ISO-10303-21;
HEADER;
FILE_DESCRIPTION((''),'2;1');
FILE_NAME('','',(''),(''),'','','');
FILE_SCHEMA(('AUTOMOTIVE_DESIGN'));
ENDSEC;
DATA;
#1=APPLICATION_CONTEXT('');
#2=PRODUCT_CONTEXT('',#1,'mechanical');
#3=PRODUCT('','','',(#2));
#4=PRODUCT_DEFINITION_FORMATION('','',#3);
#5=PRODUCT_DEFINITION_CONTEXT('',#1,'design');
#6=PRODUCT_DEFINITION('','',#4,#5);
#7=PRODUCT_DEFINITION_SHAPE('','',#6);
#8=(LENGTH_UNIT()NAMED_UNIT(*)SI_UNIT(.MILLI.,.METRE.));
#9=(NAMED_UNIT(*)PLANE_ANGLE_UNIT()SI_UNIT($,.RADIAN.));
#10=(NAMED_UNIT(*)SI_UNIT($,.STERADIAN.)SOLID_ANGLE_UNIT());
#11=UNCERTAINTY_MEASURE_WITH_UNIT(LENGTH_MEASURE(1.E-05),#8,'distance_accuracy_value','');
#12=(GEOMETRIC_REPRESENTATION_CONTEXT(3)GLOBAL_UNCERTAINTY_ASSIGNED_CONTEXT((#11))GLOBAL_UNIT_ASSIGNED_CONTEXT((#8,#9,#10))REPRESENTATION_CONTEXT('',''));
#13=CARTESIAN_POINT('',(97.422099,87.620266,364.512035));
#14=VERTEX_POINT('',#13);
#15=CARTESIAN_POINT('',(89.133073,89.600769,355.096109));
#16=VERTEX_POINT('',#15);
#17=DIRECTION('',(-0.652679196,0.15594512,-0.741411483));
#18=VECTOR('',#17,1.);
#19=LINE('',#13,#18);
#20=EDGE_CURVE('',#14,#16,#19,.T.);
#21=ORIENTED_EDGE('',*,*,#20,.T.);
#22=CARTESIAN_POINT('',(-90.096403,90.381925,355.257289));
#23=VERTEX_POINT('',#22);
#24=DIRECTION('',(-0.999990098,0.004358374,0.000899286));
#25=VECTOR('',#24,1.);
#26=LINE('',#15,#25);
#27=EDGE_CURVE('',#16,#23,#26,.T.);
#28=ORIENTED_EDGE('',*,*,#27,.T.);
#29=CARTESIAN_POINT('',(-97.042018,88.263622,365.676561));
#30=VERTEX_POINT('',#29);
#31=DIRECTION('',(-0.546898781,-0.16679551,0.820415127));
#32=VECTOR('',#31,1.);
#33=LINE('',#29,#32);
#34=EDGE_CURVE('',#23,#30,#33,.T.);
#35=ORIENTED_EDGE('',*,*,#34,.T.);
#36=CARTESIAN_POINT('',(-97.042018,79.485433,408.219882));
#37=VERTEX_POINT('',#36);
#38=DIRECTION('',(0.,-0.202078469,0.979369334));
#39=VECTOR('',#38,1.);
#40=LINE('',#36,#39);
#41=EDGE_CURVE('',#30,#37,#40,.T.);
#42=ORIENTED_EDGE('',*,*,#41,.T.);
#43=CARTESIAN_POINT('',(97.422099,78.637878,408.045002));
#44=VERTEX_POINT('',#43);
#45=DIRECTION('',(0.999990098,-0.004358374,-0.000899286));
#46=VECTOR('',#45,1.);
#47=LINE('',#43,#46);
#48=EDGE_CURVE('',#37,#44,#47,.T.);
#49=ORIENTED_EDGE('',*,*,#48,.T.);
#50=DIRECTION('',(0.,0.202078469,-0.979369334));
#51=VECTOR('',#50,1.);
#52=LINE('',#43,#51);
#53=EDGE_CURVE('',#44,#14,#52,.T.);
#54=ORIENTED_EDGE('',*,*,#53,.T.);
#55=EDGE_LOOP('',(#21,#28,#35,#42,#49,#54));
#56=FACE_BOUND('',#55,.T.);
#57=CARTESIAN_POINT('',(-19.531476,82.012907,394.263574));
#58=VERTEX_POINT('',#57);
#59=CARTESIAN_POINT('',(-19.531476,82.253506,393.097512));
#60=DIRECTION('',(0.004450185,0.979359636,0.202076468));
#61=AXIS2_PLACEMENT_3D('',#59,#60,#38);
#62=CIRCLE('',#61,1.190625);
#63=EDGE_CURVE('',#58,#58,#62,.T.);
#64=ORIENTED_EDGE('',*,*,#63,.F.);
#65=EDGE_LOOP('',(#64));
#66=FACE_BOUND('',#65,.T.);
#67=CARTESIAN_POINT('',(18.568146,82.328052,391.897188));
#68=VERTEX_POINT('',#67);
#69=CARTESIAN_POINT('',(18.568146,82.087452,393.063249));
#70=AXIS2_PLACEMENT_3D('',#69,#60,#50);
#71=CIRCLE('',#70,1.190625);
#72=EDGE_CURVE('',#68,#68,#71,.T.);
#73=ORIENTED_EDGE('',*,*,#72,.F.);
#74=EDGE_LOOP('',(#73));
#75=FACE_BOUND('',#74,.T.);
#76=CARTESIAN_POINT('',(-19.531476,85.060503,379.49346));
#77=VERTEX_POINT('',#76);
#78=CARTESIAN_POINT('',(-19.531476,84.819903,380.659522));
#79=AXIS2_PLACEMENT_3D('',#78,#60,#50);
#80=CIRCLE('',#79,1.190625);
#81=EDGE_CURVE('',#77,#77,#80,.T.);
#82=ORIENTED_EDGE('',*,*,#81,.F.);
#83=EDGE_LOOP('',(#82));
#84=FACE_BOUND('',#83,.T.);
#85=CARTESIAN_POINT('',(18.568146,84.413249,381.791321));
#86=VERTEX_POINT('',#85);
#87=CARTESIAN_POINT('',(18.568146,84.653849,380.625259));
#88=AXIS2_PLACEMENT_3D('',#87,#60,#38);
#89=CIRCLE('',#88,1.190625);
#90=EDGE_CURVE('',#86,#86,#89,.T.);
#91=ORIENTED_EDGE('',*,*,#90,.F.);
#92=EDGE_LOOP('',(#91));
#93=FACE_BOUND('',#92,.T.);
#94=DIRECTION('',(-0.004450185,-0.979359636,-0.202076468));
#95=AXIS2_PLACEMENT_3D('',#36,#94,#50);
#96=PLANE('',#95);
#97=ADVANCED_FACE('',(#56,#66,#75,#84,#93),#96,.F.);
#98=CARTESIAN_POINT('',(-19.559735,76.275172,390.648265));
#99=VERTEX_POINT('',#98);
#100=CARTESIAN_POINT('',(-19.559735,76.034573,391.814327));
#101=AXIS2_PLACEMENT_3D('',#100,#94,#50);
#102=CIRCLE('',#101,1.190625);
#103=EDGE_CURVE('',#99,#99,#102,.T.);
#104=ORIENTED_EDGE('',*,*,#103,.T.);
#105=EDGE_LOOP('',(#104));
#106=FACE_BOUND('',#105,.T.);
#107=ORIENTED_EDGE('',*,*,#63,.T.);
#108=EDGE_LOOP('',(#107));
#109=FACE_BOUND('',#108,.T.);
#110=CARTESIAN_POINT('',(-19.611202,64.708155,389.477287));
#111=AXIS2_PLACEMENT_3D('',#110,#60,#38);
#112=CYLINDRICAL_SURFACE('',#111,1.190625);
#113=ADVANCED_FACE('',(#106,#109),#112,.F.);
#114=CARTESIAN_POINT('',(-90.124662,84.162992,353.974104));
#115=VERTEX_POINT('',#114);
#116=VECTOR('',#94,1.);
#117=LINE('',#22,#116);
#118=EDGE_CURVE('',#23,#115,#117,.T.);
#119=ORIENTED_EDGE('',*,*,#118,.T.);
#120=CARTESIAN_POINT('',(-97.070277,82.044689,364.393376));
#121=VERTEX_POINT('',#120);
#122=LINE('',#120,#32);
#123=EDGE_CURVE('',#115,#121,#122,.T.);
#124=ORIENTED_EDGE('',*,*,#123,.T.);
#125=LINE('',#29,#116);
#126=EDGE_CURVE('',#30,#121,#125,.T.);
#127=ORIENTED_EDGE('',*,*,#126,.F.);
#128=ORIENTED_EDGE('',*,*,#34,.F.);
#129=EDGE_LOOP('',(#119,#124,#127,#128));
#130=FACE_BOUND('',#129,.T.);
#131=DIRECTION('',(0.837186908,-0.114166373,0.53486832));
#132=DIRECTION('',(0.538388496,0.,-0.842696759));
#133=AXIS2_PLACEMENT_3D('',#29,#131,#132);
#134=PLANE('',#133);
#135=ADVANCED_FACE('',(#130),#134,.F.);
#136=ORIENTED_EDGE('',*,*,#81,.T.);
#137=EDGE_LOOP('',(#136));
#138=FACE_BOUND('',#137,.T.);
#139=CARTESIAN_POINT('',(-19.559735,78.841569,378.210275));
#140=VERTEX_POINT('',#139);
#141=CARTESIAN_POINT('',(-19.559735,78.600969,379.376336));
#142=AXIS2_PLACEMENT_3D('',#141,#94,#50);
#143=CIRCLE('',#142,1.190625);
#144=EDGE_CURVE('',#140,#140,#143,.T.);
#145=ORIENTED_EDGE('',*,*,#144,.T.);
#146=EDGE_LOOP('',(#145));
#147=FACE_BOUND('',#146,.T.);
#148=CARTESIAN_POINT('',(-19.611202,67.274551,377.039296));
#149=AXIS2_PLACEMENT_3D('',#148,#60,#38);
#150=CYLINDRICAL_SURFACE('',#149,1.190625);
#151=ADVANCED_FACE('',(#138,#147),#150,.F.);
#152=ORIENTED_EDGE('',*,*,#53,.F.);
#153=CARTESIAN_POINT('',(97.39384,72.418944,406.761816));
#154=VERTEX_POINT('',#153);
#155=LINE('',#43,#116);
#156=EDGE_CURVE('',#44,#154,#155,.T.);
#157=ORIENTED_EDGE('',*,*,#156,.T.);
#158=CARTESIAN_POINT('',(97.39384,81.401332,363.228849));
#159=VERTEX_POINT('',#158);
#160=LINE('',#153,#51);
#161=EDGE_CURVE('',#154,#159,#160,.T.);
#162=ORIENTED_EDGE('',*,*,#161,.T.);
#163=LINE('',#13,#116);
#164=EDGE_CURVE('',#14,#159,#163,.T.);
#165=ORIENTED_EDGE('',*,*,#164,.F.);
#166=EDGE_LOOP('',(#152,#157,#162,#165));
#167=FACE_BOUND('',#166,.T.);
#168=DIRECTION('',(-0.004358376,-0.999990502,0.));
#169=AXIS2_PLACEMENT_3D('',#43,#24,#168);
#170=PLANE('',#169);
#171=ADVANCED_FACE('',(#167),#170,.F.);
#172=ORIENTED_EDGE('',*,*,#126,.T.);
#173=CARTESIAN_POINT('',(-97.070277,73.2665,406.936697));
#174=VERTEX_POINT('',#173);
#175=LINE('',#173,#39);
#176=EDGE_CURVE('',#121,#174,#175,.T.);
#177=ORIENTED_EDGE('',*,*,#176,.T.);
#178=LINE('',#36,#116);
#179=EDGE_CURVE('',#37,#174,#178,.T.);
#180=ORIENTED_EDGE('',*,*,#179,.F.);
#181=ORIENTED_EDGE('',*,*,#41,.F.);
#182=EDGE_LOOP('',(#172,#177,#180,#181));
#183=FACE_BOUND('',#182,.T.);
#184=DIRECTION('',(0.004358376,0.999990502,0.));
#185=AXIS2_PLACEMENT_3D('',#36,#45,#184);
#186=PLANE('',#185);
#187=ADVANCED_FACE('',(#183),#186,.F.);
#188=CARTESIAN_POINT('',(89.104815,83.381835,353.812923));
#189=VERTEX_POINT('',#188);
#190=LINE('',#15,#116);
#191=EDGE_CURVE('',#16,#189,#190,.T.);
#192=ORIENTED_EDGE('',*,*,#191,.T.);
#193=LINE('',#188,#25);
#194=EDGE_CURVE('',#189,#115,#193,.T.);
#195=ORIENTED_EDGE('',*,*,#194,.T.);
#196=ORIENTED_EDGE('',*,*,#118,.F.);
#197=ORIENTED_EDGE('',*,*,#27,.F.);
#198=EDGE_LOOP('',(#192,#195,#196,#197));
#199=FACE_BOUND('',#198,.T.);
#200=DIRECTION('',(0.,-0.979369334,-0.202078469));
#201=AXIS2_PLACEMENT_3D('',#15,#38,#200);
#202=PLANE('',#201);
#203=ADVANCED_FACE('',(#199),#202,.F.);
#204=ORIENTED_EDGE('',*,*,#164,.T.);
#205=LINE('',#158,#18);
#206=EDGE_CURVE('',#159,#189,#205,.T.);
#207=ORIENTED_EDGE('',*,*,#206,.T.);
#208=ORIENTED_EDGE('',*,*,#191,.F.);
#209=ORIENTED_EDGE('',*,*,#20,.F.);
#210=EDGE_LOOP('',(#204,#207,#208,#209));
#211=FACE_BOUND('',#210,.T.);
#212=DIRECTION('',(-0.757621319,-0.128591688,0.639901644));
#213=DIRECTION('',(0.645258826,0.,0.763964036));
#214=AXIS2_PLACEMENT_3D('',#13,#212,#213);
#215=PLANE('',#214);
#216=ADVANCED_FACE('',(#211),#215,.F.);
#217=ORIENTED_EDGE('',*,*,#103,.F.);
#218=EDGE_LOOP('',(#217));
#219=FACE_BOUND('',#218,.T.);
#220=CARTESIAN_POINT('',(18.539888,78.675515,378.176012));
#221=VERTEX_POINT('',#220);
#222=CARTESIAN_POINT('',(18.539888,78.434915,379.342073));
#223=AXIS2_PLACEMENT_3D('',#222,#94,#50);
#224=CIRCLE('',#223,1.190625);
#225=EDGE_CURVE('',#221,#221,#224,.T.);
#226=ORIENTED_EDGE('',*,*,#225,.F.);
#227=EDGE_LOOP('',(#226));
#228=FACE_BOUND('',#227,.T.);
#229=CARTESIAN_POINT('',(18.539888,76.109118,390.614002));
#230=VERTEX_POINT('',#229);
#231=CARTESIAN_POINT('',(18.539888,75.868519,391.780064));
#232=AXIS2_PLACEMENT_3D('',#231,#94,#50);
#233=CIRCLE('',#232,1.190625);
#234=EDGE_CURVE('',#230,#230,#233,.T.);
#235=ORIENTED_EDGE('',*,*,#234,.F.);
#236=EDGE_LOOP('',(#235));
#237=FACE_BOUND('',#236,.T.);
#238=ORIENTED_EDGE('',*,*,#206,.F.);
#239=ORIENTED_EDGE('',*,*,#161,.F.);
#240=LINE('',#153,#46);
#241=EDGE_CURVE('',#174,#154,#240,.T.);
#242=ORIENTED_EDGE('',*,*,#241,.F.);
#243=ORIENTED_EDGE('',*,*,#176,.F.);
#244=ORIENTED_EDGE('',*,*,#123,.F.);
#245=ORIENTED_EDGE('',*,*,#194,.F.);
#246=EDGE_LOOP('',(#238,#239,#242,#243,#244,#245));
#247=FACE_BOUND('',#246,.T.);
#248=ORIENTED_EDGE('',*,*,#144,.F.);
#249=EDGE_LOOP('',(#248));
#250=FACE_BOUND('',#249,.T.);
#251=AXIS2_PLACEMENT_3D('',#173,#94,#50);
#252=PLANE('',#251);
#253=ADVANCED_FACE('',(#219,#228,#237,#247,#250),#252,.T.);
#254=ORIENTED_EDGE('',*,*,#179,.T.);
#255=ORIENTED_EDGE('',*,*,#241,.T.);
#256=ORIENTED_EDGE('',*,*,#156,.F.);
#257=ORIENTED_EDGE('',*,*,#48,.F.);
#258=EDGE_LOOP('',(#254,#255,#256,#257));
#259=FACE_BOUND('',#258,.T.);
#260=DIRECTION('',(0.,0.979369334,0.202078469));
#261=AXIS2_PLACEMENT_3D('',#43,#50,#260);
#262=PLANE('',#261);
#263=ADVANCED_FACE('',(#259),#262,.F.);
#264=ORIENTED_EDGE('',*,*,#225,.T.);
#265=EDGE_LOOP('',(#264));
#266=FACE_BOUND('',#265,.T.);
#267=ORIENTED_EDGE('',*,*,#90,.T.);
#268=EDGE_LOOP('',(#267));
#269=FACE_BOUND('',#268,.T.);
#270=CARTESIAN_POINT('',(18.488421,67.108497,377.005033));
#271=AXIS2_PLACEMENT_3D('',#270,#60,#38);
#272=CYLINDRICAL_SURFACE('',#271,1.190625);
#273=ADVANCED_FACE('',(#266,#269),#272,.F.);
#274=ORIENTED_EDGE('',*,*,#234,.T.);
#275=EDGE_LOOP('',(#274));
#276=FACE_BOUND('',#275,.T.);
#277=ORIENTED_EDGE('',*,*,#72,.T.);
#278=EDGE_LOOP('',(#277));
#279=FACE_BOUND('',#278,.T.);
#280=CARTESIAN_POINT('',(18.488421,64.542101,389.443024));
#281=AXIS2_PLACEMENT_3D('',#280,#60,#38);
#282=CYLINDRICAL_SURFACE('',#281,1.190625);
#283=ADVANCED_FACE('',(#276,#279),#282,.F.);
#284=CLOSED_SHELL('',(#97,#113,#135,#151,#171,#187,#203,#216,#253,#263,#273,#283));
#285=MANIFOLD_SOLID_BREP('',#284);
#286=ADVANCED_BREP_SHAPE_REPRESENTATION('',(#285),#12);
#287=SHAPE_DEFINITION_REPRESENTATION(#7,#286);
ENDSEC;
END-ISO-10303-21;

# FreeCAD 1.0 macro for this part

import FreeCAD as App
import Part
import Sketcher
from FreeCAD import Vector
Q = App.Units.Quantity


def add_polygon(sketch, points):
    """Adds a closed chain of lines whose ends are joined by coincident constraints."""
    first, n = sketch.GeometryCount, len(points)
    for a, b in zip(points, points[1:] + points[:1]):
        sketch.addGeometry(Part.LineSegment(App.Vector(*a, 0), App.Vector(*b, 0)), False)
    for i in range(n):
        sketch.addConstraint(Sketcher.Constraint("Coincident", first + i, 2, first + (i + 1) % n, 1))

doc = App.newDocument("Part")
body = doc.addObject("PartDesign::Body", "Body")

sketch1 = doc.addObject("Sketcher::SketchObject", "Sketch")
body.addObject(sketch1)
sketch1.Placement = App.Placement(Vector(0.683346, 150.385179, 31.029772), App.Rotation(Vector(-0.999990098, 0.004358374, 0.000899286), Vector(0, -0.202078469, 0.979369334), Vector(0.004450185, 0.979359636, 0.202076468), "ZXY"))
add_polygon(sketch1, [(-88, 330), (91, 330), (98, 340), (98, 384), (-97, 384), (-97, 339)])
sketch1.addConstraint([
    Sketcher.Constraint("Horizontal", 0),
    Sketcher.Constraint("Vertical", 2),
    Sketcher.Constraint("Horizontal", 3),
    Sketcher.Constraint("Vertical", 4),
    Sketcher.Constraint("Equal", 1, 5),
    Sketcher.Constraint("Distance", 1, Q("0.5 in")),
    Sketcher.Constraint("DistanceY", 4, 2, 4, 1, Q("1.75 in")),
    Sketcher.Constraint("DistanceX", 0, 1, 0, 2, 179.231252),
    Sketcher.Constraint("DistanceX", 3, 2, 3, 1, 194.466043),
    Sketcher.Constraint("DistanceY", 2, 1, 2, 2, 43.439507),
    Sketcher.Constraint("DistanceX", -1, 1, 1, 2, 97.754591),
    Sketcher.Constraint("DistanceY", -1, 1, 2, 2, 383.73574),
])
pad1 = doc.addObject("PartDesign::Pad", "Pad")
body.addObject(pad1)
pad1.Profile = sketch1
pad1.Length = Q("0.25 in")

sketch2 = doc.addObject("Sketcher::SketchObject", "Sketch001")
body.addObject(sketch2)
sketch2.Placement = App.Placement(Vector(0.711605, 156.604113, 32.312957), App.Rotation(Vector(0.999990098, -0.004358374, -0.000899286), Vector(0, 0.202078469, -0.979369334), Vector(0.004450185, 0.979359636, 0.202076468), "ZXY"))
sketch2.addGeometry([
    Part.Circle(Vector(17.9, -355.7, 0), Vector(0, 0, 1), 1.2),
    Part.Circle(Vector(17.9, -368.4, 0), Vector(0, 0, 1), 1.2),
    Part.Circle(Vector(-20.2, -368.4, 0), Vector(0, 0, 1), 1.2),
    Part.Circle(Vector(-20.2, -355.7, 0), Vector(0, 0, 1), 1.2),
], False)
sketch2.addConstraint([
    Sketcher.Constraint("Equal", 0, 1),
    Sketcher.Constraint("Equal", 1, 2),
    Sketcher.Constraint("Equal", 2, 3),
    Sketcher.Constraint("Horizontal", 1, 3, 2, 3),
    Sketcher.Constraint("Horizontal", 0, 3, 3, 3),
    Sketcher.Constraint("Vertical", 0, 3, 1, 3),
    Sketcher.Constraint("Vertical", 2, 3, 3, 3),
    Sketcher.Constraint("Diameter", 0, Q("0.09375 in")),
    Sketcher.Constraint("DistanceY", 1, 3, 0, 3, Q("0.5 in")),
    Sketcher.Constraint("DistanceX", 2, 3, 1, 3, Q("1.5 in")),
    Sketcher.Constraint("DistanceX", -1, 1, 0, 3, 17.856718),
    Sketcher.Constraint("DistanceY", 0, 3, -1, 1, 355.665986),
])
pocket1 = doc.addObject("PartDesign::Pocket", "Pocket")
body.addObject(pocket1)
pocket1.Profile = sketch2
pocket1.Type = "ThroughAll"

doc.recompute()
